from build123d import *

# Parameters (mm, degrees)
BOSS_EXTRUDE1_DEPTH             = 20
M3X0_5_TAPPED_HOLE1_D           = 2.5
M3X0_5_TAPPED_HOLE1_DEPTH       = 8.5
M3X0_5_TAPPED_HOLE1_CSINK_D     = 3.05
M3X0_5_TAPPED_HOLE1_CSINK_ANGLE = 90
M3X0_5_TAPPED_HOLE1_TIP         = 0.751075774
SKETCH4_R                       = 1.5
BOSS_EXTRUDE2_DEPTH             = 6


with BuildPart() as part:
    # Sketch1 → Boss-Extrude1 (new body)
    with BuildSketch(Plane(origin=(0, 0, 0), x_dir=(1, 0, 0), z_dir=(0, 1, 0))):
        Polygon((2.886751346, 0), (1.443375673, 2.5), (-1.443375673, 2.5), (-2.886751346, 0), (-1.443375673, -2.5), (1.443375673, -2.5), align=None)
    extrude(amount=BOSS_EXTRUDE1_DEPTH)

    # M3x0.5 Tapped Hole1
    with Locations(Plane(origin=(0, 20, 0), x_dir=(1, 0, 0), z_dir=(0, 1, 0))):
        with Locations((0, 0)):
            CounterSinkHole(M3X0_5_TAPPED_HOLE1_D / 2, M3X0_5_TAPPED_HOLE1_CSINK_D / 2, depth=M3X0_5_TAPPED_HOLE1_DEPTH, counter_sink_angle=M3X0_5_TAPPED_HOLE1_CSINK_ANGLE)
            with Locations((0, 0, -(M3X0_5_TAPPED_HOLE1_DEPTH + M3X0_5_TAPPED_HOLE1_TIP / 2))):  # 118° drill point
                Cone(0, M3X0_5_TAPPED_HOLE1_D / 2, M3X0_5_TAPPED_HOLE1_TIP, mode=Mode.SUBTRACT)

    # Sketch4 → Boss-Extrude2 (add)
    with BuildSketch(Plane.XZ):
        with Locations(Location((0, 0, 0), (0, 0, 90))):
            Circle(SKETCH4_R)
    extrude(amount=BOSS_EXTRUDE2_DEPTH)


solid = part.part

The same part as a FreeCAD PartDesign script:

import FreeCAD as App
import Part
import Sketcher
Q = App.Units.Quantity


def add_polygon(sketch, points):
    """Adds a closed chain of lines whose ends are joined by coincident constraints."""
    first, n = sketch.GeometryCount, len(points)
    for a, b in zip(points, points[1:] + points[:1]):
        sketch.addGeometry(Part.LineSegment(App.Vector(*a, 0), App.Vector(*b, 0)), False)
    for i in range(n):
        sketch.addConstraint(Sketcher.Constraint("Coincident", first + i, 2, first + (i + 1) % n, 1))

doc = App.newDocument("Part")
body = doc.addObject("PartDesign::Body", "Body")

sketch1 = body.newObject("Sketcher::SketchObject", "Sketch")
sketch1.AttachmentSupport = (doc.getObject("XZ_Plane"), [""])
sketch1.MapMode = "FlatFace"
add_polygon(sketch1, [(2.886751, 0), (1.443376, -2.5), (-1.443376, -2.5), (-2.886751, 0), (-1.443376, 2.5), (1.443376, 2.5)])
sketch1.addConstraint(Sketcher.Constraint("Horizontal", 1))
sketch1.addConstraint(Sketcher.Constraint("Horizontal", 4))
sketch1.addConstraint(Sketcher.Constraint("Symmetric", 0, 2, 3, 2, -1, 1))
sketch1.addConstraint(Sketcher.Constraint("Symmetric", 2, 2, 5, 2, -1, 1))
sketch1.addConstraint(Sketcher.Constraint("PointOnObject", 2, 2, -1))
sketch1.addConstraint(Sketcher.Constraint("Parallel", 2, 5))
sketch1.addConstraint(Sketcher.Constraint("Vertical", 1, 2, 3, 2))
sketch1.addConstraint(Sketcher.Constraint("Angle", 0, Q("-120 deg")))
sketch1.addConstraint(Sketcher.Constraint("DistanceY", 1, 2, 3, 2, Q("5 mm")))
sketch1.addConstraint(Sketcher.Constraint("DistanceX", 1, 2, 1, 1, Q("2.886751 mm")))
pad1 = body.newObject("PartDesign::Pad", "Pad")
pad1.Profile = sketch1
pad1.Length = 20
pad1.Reversed = True

sketch2 = body.newObject("Sketcher::SketchObject", "Sketch001")
sketch2.AttachmentSupport = (doc.getObject("XZ_Plane"), [""])
sketch2.MapMode = "FlatFace"
sketch2.AttachmentOffset = App.Placement(App.Vector(0, 0, -20), App.Rotation())
sketch2.addGeometry(Part.Circle(App.Vector(0, 0, 0), App.Vector(0, 0, 1), 1.25), False)
sketch2.addConstraint(Sketcher.Constraint("Coincident", 0, 3, -1, 1))
sketch2.addConstraint(Sketcher.Constraint("Diameter", 0, Q("2.5 mm")))
doc.recompute()
hole = body.newObject("PartDesign::Hole", "Hole")
hole.Profile = sketch2
hole.ThreadType = "None"
hole.Diameter = 2.5
hole.DepthType = "Dimension"
hole.Depth = 8.5
hole.DrillPoint = "Angled"
hole.DrillPointAngle = 118
hole.HoleCutType = "Countersink"
hole.HoleCutDiameter = 3.05
hole.HoleCutCountersinkAngle = 90
hole.Reversed = True

sketch3 = body.newObject("Sketcher::SketchObject", "Sketch002")
sketch3.AttachmentSupport = (doc.getObject("XZ_Plane"), [""])
sketch3.MapMode = "FlatFace"
sketch3.addGeometry(Part.Circle(App.Vector(0, 0, 0), App.Vector(0, 0, 1), 1.5), False)
sketch3.addConstraint(Sketcher.Constraint("Coincident", 0, 3, -1, 1))
sketch3.addConstraint(Sketcher.Constraint("Diameter", 0, Q("3 mm")))
pad2 = body.newObject("PartDesign::Pad", "Pad001")
pad2.Profile = sketch3
pad2.Length = 6

doc.recompute()
